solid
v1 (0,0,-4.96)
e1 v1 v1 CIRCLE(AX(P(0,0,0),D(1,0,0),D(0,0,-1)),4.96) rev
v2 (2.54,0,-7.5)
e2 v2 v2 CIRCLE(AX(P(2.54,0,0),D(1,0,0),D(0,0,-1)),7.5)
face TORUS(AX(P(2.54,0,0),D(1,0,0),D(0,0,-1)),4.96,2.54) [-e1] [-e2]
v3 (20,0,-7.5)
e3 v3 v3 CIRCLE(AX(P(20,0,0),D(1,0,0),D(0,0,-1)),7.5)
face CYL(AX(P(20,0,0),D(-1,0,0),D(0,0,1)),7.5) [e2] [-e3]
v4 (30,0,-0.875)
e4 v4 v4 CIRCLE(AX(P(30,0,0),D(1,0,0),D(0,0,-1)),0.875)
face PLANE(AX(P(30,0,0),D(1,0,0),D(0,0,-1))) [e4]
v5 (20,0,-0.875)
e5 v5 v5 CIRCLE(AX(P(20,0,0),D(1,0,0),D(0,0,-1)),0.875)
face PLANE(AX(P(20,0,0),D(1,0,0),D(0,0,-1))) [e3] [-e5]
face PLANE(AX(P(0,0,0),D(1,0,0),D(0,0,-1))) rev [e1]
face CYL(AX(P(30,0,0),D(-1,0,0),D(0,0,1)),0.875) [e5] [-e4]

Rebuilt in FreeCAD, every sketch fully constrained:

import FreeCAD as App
import Part
import Sketcher

V = App.Vector
Q = App.Units.Quantity


def edges_at(feature, points):
    """Names of the edges that pass closest to the given points."""
    edges = feature.Shape.Edges
    near = lambda p: min(range(len(edges)), key=lambda i: edges[i].distToShape(Part.Vertex(*p))[0])
    return sorted({f"Edge{near(p) + 1}" for p in points})

doc = App.newDocument("Part")
params = doc.addObject("Spreadsheet::Sheet", "Params")
for row, (alias, value) in enumerate([
    ("sketch1_diameter", "15 mm"),
    ("pad1_length", "20 mm"),
    ("sketch2_diameter", "1.75 mm"),
    ("pad2_length", "10 mm"),
    ("fillet_radius", "2.54 mm"),
], start=1):
    params.set(f"A{row}", alias)
    params.set(f"B{row}", "=" + value)
    params.setAlias(f"B{row}", alias)

body = doc.addObject("PartDesign::Body", "Body")

# Sketch on YZ plane
sketch1 = body.newObject("Sketcher::SketchObject", "Sketch")
sketch1.AttachmentSupport = (doc.getObject("YZ_Plane"), [""])
sketch1.MapMode = "FlatFace"
sketch1.addGeometry(Part.Circle(V(0, 0, 0), V(0, 0, 1), 8), False)
sketch1.addConstraint([
    Sketcher.Constraint("Coincident", 0, 3, -1, 1),
    Sketcher.Constraint("Diameter", 0, Q("15 mm")),
])
sketch1.setExpression("Constraints[1]", "Params.sketch1_diameter")
pad1 = body.newObject("PartDesign::Pad", "Pad")
pad1.Profile = sketch1
pad1.setExpression("Length", "Params.pad1_length")

# Sketch on YZ plane
sketch2 = body.newObject("Sketcher::SketchObject", "Sketch001")
sketch2.AttachmentSupport = (doc.getObject("YZ_Plane"), [""])
sketch2.MapMode = "FlatFace"
sketch2.AttachmentOffset = App.Placement(V(0, 0, 20), App.Rotation())
sketch2.addGeometry(Part.Circle(V(0, 0, 0), V(0, 0, 1), 0.9), False)
sketch2.addConstraint([
    Sketcher.Constraint("Coincident", 0, 3, -1, 1),
    Sketcher.Constraint("Diameter", 0, Q("1.75 mm")),
])
sketch2.setExpression("Constraints[1]", "Params.sketch2_diameter")
pad2 = body.newObject("PartDesign::Pad", "Pad001")
pad2.Profile = sketch2
pad2.setExpression("Length", "Params.pad2_length")
doc.recompute()

fillet = body.newObject("PartDesign::Fillet", "Fillet")
fillet.Base = (pad2, edges_at(pad2, [(0, 0, 7.5)]))
fillet.setExpression("Radius", "Params.fillet_radius")

doc.recompute()
